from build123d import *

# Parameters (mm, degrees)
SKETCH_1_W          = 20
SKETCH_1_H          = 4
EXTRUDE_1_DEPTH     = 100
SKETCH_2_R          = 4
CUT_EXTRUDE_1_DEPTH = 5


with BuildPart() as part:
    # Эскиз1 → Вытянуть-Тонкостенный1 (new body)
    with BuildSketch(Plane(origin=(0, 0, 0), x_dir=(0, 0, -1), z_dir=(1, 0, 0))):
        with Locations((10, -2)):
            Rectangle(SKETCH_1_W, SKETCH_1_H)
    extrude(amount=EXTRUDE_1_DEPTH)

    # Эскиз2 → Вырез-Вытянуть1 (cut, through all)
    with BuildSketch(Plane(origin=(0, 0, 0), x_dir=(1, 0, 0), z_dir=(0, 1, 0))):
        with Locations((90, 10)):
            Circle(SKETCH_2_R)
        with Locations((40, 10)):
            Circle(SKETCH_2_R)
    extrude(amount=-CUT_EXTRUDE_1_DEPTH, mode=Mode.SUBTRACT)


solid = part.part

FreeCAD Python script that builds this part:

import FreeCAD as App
import Part
import Sketcher


def add_polygon(sketch, points):
    """Adds a closed chain of lines whose ends are joined by coincident constraints."""
    first, n = sketch.GeometryCount, len(points)
    for a, b in zip(points, points[1:] + points[:1]):
        sketch.addGeometry(Part.LineSegment(App.Vector(*a, 0), App.Vector(*b, 0)), False)
    for i in range(n):
        sketch.addConstraint(Sketcher.Constraint("Coincident", first + i, 2, first + (i + 1) % n, 1))

doc = App.newDocument("Part")
body = doc.addObject("PartDesign::Body", "Body")

sketch1 = doc.addObject("Sketcher::SketchObject", "Sketch")
body.addObject(sketch1)
sketch1.AttachmentSupport = (doc.YZ_Plane, [""])
sketch1.MapMode = "FlatFace"
add_polygon(sketch1, [(0, 0), (-4, 0), (-4, -20), (0, -20)])
sketch1.addConstraint([
    Sketcher.Constraint("Horizontal", 0),
    Sketcher.Constraint("Vertical", 1),
    Sketcher.Constraint("Horizontal", 2),
    Sketcher.Constraint("Vertical", 3),
    Sketcher.Constraint("Coincident", 3, 2, -1, 1),
    Sketcher.Constraint("DistanceX", 0, 2, 0, 1, 4.0),
    Sketcher.Constraint("DistanceY", 1, 2, 1, 1, 20.0),
])
pad1 = doc.addObject("PartDesign::Pad", "Pad")
body.addObject(pad1)
pad1.Profile = sketch1
pad1.Length = 100

sketch2 = doc.addObject("Sketcher::SketchObject", "Sketch001")
body.addObject(sketch2)
sketch2.AttachmentSupport = (doc.XZ_Plane, [""])
sketch2.MapMode = "FlatFace"
sketch2.addGeometry([
    Part.Circle(App.Vector(90, -10, 0), App.Vector(0, 0, 1), 4),
    Part.Circle(App.Vector(40, -10, 0), App.Vector(0, 0, 1), 4),
], False)
sketch2.addConstraint([
    Sketcher.Constraint("Equal", 0, 1),
    Sketcher.Constraint("Horizontal", 0, 3, 1, 3),
    Sketcher.Constraint("Diameter", 0, 8.0),
    Sketcher.Constraint("DistanceX", -1, 1, 0, 3, 90.0),
    Sketcher.Constraint("DistanceY", 0, 3, -1, 1, 10.0),
    Sketcher.Constraint("DistanceX", -1, 1, 1, 3, 40.0),
])
pocket1 = doc.addObject("PartDesign::Pocket", "Pocket")
body.addObject(pocket1)
pocket1.Profile = sketch2
pocket1.Type = "ThroughAll"
pocket1.Reversed = True

doc.recompute()
